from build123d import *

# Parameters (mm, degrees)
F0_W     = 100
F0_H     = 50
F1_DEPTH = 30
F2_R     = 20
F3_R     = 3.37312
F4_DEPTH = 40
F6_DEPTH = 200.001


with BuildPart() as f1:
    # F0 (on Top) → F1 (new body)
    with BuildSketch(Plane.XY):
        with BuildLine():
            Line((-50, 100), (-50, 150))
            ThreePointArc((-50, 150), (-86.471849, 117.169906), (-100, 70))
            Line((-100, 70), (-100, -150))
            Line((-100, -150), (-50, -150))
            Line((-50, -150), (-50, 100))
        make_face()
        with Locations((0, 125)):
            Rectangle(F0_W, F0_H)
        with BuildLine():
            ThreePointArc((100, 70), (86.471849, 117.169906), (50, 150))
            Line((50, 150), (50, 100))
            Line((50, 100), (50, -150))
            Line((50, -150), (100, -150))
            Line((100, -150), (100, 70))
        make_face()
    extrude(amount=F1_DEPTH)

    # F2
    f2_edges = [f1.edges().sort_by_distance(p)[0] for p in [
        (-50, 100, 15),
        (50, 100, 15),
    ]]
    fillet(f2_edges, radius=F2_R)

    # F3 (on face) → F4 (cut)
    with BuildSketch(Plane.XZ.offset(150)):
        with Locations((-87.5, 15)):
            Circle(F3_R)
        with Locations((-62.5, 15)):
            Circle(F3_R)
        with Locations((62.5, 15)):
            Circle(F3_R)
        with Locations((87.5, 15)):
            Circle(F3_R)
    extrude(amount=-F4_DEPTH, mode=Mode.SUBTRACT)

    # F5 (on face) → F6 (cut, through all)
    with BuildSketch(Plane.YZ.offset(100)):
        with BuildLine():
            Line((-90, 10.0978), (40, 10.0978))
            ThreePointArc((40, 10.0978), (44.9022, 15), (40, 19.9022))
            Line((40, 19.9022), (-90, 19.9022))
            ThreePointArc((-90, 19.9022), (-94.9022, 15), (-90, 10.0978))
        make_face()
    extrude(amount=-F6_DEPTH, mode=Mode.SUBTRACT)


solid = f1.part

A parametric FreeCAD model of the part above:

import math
import FreeCAD as App
import Part
import Sketcher
from FreeCAD import Vector
Q = App.Units.Quantity


def edges_at(feature, points):
    """Names of the edges that pass closest to the given points."""
    edges = feature.Shape.Edges
    near = lambda p: min(range(len(edges)), key=lambda i: edges[i].distToShape(Part.Vertex(*p))[0])
    return sorted({f"Edge{near(p) + 1}" for p in points})

doc = App.newDocument("Part")
body = doc.addObject("PartDesign::Body", "Body")

# Sketch on XY plane
sketch1 = body.newObject("Sketcher::SketchObject", "Sketch")
sketch1.AttachmentSupport = (doc.getObject("XY_Plane"), [""])
sketch1.MapMode = "FlatFace"
sketch1.addGeometry(Part.ArcOfCircle(Part.Circle(Vector(-11, 70, 0), Vector(0, 0, 1), 89), math.radians(116), math.radians(180)), False)
sketch1.addGeometry(Part.LineSegment(Vector(-100, 70, 0), Vector(-100, -150, 0)), False)
sketch1.addGeometry(Part.LineSegment(Vector(-100, -150, 0), Vector(-50, -150, 0)), False)
sketch1.addGeometry(Part.LineSegment(Vector(-50, -150, 0), Vector(-50, 100, 0)), False)
sketch1.addGeometry(Part.LineSegment(Vector(-50, 100, 0), Vector(50, 100, 0)), False)
sketch1.addGeometry(Part.LineSegment(Vector(50, 100, 0), Vector(50, -150, 0)), False)
sketch1.addGeometry(Part.LineSegment(Vector(50, -150, 0), Vector(100, -150, 0)), False)
sketch1.addGeometry(Part.LineSegment(Vector(100, -150, 0), Vector(100, 70, 0)), False)
sketch1.addGeometry(Part.ArcOfCircle(Part.Circle(Vector(11, 70, 0), Vector(0, 0, 1), 89), math.radians(0), math.radians(64)), False)
sketch1.addGeometry(Part.LineSegment(Vector(50, 150, 0), Vector(-50, 150, 0)), False)
sketch1.addConstraint(Sketcher.Constraint("Tangent", 0, 2, 1, 1))
sketch1.addConstraint(Sketcher.Constraint("Coincident", 1, 2, 2, 1))
sketch1.addConstraint(Sketcher.Constraint("Coincident", 2, 2, 3, 1))
sketch1.addConstraint(Sketcher.Constraint("Coincident", 3, 2, 4, 1))
sketch1.addConstraint(Sketcher.Constraint("Coincident", 4, 2, 5, 1))
sketch1.addConstraint(Sketcher.Constraint("Coincident", 5, 2, 6, 1))
sketch1.addConstraint(Sketcher.Constraint("Coincident", 6, 2, 7, 1))
sketch1.addConstraint(Sketcher.Constraint("Tangent", 7, 2, 8, 1))
sketch1.addConstraint(Sketcher.Constraint("Coincident", 8, 2, 9, 1))
sketch1.addConstraint(Sketcher.Constraint("Coincident", 9, 2, 0, 1))
sketch1.addConstraint(Sketcher.Constraint("Vertical", 1))
sketch1.addConstraint(Sketcher.Constraint("Horizontal", 2))
sketch1.addConstraint(Sketcher.Constraint("Vertical", 3))
sketch1.addConstraint(Sketcher.Constraint("Horizontal", 4))
sketch1.addConstraint(Sketcher.Constraint("Vertical", 5))
sketch1.addConstraint(Sketcher.Constraint("Horizontal", 6))
sketch1.addConstraint(Sketcher.Constraint("Vertical", 7))
sketch1.addConstraint(Sketcher.Constraint("Horizontal", 9))
sketch1.addConstraint(Sketcher.Constraint("Equal", 0, 8))
sketch1.addConstraint(Sketcher.Constraint("Symmetric", 2, 2, 8, 2, -1, 1))
sketch1.addConstraint(Sketcher.Constraint("Symmetric", 5, 2, 9, 2, -1, 1))
sketch1.addConstraint(Sketcher.Constraint("Symmetric", 0, 3, 8, 3, -2))
sketch1.addConstraint(Sketcher.Constraint("Radius", 0, Q("88.999999 mm")))
sketch1.addConstraint(Sketcher.Constraint("DistanceX", 2, 1, 2, 2, Q("50 mm")))
sketch1.addConstraint(Sketcher.Constraint("DistanceX", 4, 1, 4, 2, Q("100 mm")))
sketch1.addConstraint(Sketcher.Constraint("DistanceY", 1, 2, 1, 1, Q("220 mm")))
sketch1.addConstraint(Sketcher.Constraint("DistanceY", 3, 1, 3, 2, Q("250 mm")))
pad1 = body.newObject("PartDesign::Pad", "Pad")
pad1.Profile = sketch1
pad1.Length = 30
doc.recompute()

fillet = body.newObject("PartDesign::Fillet", "Fillet")
fillet.Base = (pad1, edges_at(pad1, [(-50, 100, 15), (50, 100, 15)]))
fillet.Radius = 20

# Sketch on XZ plane
sketch2 = body.newObject("Sketcher::SketchObject", "Sketch001")
sketch2.AttachmentSupport = (doc.getObject("XZ_Plane"), [""])
sketch2.MapMode = "FlatFace"
sketch2.AttachmentOffset = App.Placement(Vector(0, 0, 150), App.Rotation())
sketch2.addGeometry(Part.Circle(Vector(-87.5, 15, 0), Vector(0, 0, 1), 3.4), False)
sketch2.addGeometry(Part.Circle(Vector(-62.5, 15, 0), Vector(0, 0, 1), 3.4), False)
sketch2.addGeometry(Part.Circle(Vector(62.5, 15, 0), Vector(0, 0, 1), 3.4), False)
sketch2.addGeometry(Part.Circle(Vector(87.5, 15, 0), Vector(0, 0, 1), 3.4), False)
sketch2.addConstraint(Sketcher.Constraint("Equal", 0, 1))
sketch2.addConstraint(Sketcher.Constraint("Equal", 1, 2))
sketch2.addConstraint(Sketcher.Constraint("Equal", 2, 3))
sketch2.addConstraint(Sketcher.Constraint("Symmetric", 1, 3, 2, 3, -2))
sketch2.addConstraint(Sketcher.Constraint("Symmetric", 0, 3, 3, 3, -2))
sketch2.addConstraint(Sketcher.Constraint("Horizontal", 0, 3, 1, 3))
sketch2.addConstraint(Sketcher.Constraint("DistanceY", -1, 1, 0, 3, Q("15 mm")))
sketch2.addConstraint(Sketcher.Constraint("DistanceX", 0, 3, 1, 3, Q("25 mm")))
sketch2.addConstraint(Sketcher.Constraint("DistanceX", 1, 3, 2, 3, Q("125 mm")))
sketch2.addConstraint(Sketcher.Constraint("Diameter", 0, Q("6.74624 mm")))
pocket1 = body.newObject("PartDesign::Pocket", "Pocket")
pocket1.Profile = sketch2
pocket1.Length = 40

# Sketch on YZ plane
sketch3 = body.newObject("Sketcher::SketchObject", "Sketch002")
sketch3.AttachmentSupport = (doc.getObject("YZ_Plane"), [""])
sketch3.MapMode = "FlatFace"
sketch3.AttachmentOffset = App.Placement(Vector(0, 0, 100), App.Rotation())
sketch3.addGeometry(Part.LineSegment(Vector(-90, 10.1, 0), Vector(40, 10.1, 0)), False)
sketch3.addGeometry(Part.ArcOfCircle(Part.Circle(Vector(40, 15, 0), Vector(0, 0, 1), 4.9), math.radians(-90), math.radians(90)), False)
sketch3.addGeometry(Part.LineSegment(Vector(40, 19.9, 0), Vector(-90, 19.9, 0)), False)
sketch3.addGeometry(Part.ArcOfCircle(Part.Circle(Vector(-90, 15, 0), Vector(0, 0, 1), 4.9), math.radians(90), math.radians(270)), False)
sketch3.addConstraint(Sketcher.Constraint("Tangent", 0, 2, 1, 1))
sketch3.addConstraint(Sketcher.Constraint("Tangent", 1, 2, 2, 1))
sketch3.addConstraint(Sketcher.Constraint("Tangent", 2, 2, 3, 1))
sketch3.addConstraint(Sketcher.Constraint("Tangent", 3, 2, 0, 1))
sketch3.addConstraint(Sketcher.Constraint("Horizontal", 0))
sketch3.addConstraint(Sketcher.Constraint("Horizontal", 2))
sketch3.addConstraint(Sketcher.Constraint("DistanceX", 0, 1, 0, 2, Q("130 mm")))
sketch3.addConstraint(Sketcher.Constraint("DistanceX", -1, 1, 1, 3, Q("40 mm")))
sketch3.addConstraint(Sketcher.Constraint("DistanceY", -1, 1, 1, 3, Q("15 mm")))
sketch3.addConstraint(Sketcher.Constraint("Radius", 1, Q("4.9022 mm")))
pocket2 = body.newObject("PartDesign::Pocket", "Pocket001")
pocket2.Profile = sketch3
pocket2.Type = "ThroughAll"

doc.recompute()
